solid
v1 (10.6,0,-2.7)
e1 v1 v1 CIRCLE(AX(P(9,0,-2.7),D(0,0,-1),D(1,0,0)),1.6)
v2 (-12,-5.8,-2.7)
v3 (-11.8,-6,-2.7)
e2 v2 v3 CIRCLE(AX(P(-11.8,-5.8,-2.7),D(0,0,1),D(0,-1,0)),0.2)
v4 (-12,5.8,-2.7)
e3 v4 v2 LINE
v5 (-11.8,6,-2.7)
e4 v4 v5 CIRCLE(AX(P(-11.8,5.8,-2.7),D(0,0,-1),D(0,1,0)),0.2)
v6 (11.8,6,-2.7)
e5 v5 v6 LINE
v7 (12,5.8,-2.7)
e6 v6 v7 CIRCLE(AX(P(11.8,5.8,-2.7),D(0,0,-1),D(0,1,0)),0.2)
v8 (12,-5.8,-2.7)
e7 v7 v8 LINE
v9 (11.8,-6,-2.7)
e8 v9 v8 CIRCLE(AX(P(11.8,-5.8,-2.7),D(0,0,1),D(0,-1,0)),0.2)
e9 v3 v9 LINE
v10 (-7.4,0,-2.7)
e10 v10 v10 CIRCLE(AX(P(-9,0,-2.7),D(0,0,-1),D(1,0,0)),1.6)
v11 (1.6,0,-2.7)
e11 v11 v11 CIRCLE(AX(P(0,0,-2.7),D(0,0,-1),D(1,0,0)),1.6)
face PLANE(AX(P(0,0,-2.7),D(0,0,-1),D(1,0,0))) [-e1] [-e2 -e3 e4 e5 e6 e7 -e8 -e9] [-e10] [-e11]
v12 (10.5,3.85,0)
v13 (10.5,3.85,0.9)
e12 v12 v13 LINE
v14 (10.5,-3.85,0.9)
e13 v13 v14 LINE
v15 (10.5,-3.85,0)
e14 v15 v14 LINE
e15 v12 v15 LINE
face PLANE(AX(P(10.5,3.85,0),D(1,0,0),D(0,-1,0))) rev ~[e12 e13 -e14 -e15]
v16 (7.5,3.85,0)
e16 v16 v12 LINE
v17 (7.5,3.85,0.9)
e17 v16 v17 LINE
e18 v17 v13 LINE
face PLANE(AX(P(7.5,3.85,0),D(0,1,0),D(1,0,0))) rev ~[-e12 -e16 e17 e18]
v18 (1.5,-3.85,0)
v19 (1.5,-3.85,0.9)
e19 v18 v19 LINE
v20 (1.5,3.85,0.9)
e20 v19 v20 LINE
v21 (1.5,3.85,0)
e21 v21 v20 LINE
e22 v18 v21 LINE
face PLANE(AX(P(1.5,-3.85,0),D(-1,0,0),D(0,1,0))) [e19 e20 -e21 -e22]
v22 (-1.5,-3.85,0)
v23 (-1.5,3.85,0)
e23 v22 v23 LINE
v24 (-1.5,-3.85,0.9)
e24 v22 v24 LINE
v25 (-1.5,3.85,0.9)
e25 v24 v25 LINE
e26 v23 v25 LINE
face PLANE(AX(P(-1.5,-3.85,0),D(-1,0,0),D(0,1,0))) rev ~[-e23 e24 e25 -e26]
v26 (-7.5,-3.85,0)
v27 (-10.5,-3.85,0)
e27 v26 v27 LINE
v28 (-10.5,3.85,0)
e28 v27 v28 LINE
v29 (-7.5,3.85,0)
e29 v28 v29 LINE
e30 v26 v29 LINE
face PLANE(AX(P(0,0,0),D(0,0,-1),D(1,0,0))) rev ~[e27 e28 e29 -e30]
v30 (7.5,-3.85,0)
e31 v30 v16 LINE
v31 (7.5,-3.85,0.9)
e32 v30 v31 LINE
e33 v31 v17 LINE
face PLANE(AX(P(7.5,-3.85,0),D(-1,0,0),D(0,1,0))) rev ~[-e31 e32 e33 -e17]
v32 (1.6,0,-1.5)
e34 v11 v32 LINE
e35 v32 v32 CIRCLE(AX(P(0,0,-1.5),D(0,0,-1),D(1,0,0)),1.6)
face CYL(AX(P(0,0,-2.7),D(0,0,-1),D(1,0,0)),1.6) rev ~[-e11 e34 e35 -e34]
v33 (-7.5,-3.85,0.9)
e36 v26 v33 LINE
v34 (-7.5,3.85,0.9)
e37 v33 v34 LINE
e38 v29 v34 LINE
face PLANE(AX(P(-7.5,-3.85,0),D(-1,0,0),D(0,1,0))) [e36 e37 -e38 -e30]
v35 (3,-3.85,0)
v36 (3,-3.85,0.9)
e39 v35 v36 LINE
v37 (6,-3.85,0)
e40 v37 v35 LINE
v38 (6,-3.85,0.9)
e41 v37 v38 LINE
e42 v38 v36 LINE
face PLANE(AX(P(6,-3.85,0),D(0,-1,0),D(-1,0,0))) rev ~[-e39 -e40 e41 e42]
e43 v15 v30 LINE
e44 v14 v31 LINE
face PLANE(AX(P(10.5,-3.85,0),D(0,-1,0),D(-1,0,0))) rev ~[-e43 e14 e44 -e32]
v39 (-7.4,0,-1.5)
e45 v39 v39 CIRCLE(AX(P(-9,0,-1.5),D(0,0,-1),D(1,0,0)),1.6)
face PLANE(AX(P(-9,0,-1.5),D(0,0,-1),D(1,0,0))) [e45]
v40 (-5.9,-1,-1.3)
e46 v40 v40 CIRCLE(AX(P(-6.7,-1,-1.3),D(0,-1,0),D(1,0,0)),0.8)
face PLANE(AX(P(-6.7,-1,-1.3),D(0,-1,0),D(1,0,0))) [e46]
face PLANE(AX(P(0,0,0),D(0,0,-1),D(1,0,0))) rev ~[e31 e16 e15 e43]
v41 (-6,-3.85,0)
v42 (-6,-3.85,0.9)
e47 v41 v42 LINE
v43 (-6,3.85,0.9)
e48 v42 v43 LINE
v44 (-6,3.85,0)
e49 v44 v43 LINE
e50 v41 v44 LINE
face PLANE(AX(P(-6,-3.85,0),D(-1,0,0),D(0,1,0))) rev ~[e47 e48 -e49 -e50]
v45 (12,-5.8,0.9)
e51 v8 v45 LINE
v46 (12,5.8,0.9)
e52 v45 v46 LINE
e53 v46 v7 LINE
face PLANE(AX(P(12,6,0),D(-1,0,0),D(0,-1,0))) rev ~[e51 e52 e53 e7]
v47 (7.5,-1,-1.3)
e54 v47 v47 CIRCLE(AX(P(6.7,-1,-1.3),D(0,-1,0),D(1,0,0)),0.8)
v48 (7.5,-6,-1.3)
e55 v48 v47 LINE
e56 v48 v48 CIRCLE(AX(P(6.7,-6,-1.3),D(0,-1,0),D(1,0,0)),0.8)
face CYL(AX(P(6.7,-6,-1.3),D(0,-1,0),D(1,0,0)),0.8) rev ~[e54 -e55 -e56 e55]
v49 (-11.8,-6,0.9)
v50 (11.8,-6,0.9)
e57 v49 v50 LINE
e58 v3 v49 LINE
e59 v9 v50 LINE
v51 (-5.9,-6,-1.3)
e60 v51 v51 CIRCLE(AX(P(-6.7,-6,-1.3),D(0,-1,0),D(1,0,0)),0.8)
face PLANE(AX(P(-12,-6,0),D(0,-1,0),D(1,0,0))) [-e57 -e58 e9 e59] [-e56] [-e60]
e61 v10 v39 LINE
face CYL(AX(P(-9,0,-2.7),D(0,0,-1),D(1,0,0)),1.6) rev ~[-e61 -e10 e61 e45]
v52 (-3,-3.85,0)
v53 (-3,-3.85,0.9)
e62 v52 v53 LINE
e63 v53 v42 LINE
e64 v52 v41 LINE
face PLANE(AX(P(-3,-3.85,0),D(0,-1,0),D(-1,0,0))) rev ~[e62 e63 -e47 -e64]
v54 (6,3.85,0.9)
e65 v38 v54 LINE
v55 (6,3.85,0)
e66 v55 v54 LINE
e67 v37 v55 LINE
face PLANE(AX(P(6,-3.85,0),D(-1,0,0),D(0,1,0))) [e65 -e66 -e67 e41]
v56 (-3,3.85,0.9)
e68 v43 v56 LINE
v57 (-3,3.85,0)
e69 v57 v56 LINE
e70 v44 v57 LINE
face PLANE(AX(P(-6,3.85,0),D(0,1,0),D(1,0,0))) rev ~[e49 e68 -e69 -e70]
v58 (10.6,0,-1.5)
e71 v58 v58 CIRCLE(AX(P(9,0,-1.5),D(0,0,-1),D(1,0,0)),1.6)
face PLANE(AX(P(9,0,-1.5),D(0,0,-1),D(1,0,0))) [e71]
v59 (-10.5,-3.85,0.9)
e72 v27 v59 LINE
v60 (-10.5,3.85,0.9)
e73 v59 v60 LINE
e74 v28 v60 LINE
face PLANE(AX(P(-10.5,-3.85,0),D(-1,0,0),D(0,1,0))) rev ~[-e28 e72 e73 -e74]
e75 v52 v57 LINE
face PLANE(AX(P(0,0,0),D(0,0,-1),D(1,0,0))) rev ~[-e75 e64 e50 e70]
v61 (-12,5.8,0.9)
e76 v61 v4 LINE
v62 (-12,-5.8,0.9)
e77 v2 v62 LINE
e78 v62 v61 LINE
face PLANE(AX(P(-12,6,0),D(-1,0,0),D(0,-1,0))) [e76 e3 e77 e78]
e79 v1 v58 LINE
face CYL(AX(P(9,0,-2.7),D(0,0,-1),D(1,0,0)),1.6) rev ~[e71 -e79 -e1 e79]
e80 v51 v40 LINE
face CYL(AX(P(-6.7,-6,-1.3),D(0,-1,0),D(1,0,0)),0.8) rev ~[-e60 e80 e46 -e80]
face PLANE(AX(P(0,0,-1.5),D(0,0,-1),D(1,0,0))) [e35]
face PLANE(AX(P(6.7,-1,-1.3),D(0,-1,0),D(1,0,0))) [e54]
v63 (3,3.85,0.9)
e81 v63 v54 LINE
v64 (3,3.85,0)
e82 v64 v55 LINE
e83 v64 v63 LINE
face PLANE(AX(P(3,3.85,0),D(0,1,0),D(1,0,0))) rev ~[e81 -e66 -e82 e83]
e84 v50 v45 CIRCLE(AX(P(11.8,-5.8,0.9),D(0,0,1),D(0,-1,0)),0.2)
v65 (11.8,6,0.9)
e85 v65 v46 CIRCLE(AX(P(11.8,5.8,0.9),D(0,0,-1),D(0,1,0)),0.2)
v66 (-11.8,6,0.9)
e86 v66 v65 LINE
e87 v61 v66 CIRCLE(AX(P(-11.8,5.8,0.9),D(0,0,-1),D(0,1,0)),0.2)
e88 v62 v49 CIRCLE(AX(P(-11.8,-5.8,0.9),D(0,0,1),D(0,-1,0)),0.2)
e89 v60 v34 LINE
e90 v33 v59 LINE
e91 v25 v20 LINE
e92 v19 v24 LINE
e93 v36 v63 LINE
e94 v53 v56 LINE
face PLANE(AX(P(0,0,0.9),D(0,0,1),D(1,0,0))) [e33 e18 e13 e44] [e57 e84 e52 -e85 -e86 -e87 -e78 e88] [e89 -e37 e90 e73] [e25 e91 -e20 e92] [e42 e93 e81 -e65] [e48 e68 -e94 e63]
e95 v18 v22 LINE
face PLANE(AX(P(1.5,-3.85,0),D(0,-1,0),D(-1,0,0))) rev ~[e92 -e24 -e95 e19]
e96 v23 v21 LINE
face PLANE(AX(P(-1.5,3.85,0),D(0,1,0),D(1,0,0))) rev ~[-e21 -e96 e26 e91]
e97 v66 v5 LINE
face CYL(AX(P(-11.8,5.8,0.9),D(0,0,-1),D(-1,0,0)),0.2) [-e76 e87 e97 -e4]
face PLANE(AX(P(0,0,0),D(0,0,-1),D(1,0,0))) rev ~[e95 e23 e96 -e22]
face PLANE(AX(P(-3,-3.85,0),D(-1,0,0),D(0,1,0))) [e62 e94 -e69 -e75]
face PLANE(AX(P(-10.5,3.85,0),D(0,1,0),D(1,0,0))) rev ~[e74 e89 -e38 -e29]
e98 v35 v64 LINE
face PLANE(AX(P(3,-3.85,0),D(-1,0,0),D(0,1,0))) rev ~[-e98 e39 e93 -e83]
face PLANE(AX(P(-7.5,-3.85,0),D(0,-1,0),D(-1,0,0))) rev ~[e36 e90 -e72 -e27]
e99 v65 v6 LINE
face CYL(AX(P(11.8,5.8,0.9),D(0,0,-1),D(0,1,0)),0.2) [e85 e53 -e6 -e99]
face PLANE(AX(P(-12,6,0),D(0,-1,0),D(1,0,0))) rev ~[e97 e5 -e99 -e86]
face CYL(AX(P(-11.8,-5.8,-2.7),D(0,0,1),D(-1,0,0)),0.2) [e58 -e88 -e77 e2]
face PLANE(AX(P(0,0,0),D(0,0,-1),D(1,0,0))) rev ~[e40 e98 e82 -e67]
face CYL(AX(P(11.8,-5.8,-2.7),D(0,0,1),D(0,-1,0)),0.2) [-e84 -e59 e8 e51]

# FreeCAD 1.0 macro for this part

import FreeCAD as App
import Part
import Sketcher

V = App.Vector


def edges_at(feature, points):
    """Names of the edges that pass closest to the given points."""
    edges = feature.Shape.Edges
    near = lambda p: min(range(len(edges)), key=lambda i: edges[i].distToShape(Part.Vertex(*p))[0])
    return sorted({f"Edge{near(p) + 1}" for p in points})

doc = App.newDocument("Part")
body = doc.addObject("PartDesign::Body", "Body")

# Sketch on XY plane
sketch1 = doc.addObject("Sketcher::SketchObject", "Sketch")
body.addObject(sketch1)
sketch1.AttachmentSupport = (doc.XY_Plane, [""])
sketch1.MapMode = "FlatFace"
sketch1.addGeometry(Part.LineSegment(V(-12, 6, 0), V(-12, -6, 0)), False)
sketch1.addGeometry(Part.LineSegment(V(-12, -6, 0), V(12, -6, 0)), False)
sketch1.addGeometry(Part.LineSegment(V(12, -6, 0), V(12, 6, 0)), False)
sketch1.addGeometry(Part.LineSegment(V(12, 6, 0), V(-12, 6, 0)), False)
sketch1.addGeometry(Part.LineSegment(V(10.5, -3.9, 0), V(7.5, -3.9, 0)), False)
sketch1.addGeometry(Part.LineSegment(V(7.5, -3.9, 0), V(7.5, 3.9, 0)), False)
sketch1.addGeometry(Part.LineSegment(V(7.5, 3.9, 0), V(10.5, 3.9, 0)), False)
sketch1.addGeometry(Part.LineSegment(V(10.5, 3.9, 0), V(10.5, -3.9, 0)), False)
sketch1.addGeometry(Part.LineSegment(V(6, -3.9, 0), V(3, -3.9, 0)), False)
sketch1.addGeometry(Part.LineSegment(V(3, -3.9, 0), V(3, 3.9, 0)), False)
sketch1.addGeometry(Part.LineSegment(V(3, 3.9, 0), V(6, 3.9, 0)), False)
sketch1.addGeometry(Part.LineSegment(V(6, 3.9, 0), V(6, -3.9, 0)), False)
sketch1.addGeometry(Part.LineSegment(V(1.5, -3.9, 0), V(-1.5, -3.9, 0)), False)
sketch1.addGeometry(Part.LineSegment(V(-1.5, -3.9, 0), V(-1.5, 3.9, 0)), False)
sketch1.addGeometry(Part.LineSegment(V(-1.5, 3.9, 0), V(1.5, 3.9, 0)), False)
sketch1.addGeometry(Part.LineSegment(V(1.5, 3.9, 0), V(1.5, -3.9, 0)), False)
sketch1.addGeometry(Part.LineSegment(V(-3, -3.9, 0), V(-6, -3.9, 0)), False)
sketch1.addGeometry(Part.LineSegment(V(-6, -3.9, 0), V(-6, 3.9, 0)), False)
sketch1.addGeometry(Part.LineSegment(V(-6, 3.9, 0), V(-3, 3.9, 0)), False)
sketch1.addGeometry(Part.LineSegment(V(-3, 3.9, 0), V(-3, -3.9, 0)), False)
sketch1.addGeometry(Part.LineSegment(V(-7.5, -3.9, 0), V(-10.5, -3.9, 0)), False)
sketch1.addGeometry(Part.LineSegment(V(-10.5, -3.9, 0), V(-10.5, 3.9, 0)), False)
sketch1.addGeometry(Part.LineSegment(V(-10.5, 3.9, 0), V(-7.5, 3.9, 0)), False)
sketch1.addGeometry(Part.LineSegment(V(-7.5, 3.9, 0), V(-7.5, -3.9, 0)), False)
sketch1.addConstraint(Sketcher.Constraint("Coincident", 0, 2, 1, 1))
sketch1.addConstraint(Sketcher.Constraint("Coincident", 1, 2, 2, 1))
sketch1.addConstraint(Sketcher.Constraint("Coincident", 2, 2, 3, 1))
sketch1.addConstraint(Sketcher.Constraint("Coincident", 3, 2, 0, 1))
sketch1.addConstraint(Sketcher.Constraint("Coincident", 4, 2, 5, 1))
sketch1.addConstraint(Sketcher.Constraint("Coincident", 5, 2, 6, 1))
sketch1.addConstraint(Sketcher.Constraint("Coincident", 6, 2, 7, 1))
sketch1.addConstraint(Sketcher.Constraint("Coincident", 7, 2, 4, 1))
sketch1.addConstraint(Sketcher.Constraint("Coincident", 8, 2, 9, 1))
sketch1.addConstraint(Sketcher.Constraint("Coincident", 9, 2, 10, 1))
sketch1.addConstraint(Sketcher.Constraint("Coincident", 10, 2, 11, 1))
sketch1.addConstraint(Sketcher.Constraint("Coincident", 11, 2, 8, 1))
sketch1.addConstraint(Sketcher.Constraint("Coincident", 12, 2, 13, 1))
sketch1.addConstraint(Sketcher.Constraint("Coincident", 13, 2, 14, 1))
sketch1.addConstraint(Sketcher.Constraint("Coincident", 14, 2, 15, 1))
sketch1.addConstraint(Sketcher.Constraint("Coincident", 15, 2, 12, 1))
sketch1.addConstraint(Sketcher.Constraint("Coincident", 16, 2, 17, 1))
sketch1.addConstraint(Sketcher.Constraint("Coincident", 17, 2, 18, 1))
sketch1.addConstraint(Sketcher.Constraint("Coincident", 18, 2, 19, 1))
sketch1.addConstraint(Sketcher.Constraint("Coincident", 19, 2, 16, 1))
sketch1.addConstraint(Sketcher.Constraint("Coincident", 20, 2, 21, 1))
sketch1.addConstraint(Sketcher.Constraint("Coincident", 21, 2, 22, 1))
sketch1.addConstraint(Sketcher.Constraint("Coincident", 22, 2, 23, 1))
sketch1.addConstraint(Sketcher.Constraint("Coincident", 23, 2, 20, 1))
sketch1.addConstraint(Sketcher.Constraint("Vertical", 0))
sketch1.addConstraint(Sketcher.Constraint("Horizontal", 1))
sketch1.addConstraint(Sketcher.Constraint("Vertical", 2))
sketch1.addConstraint(Sketcher.Constraint("Horizontal", 3))
sketch1.addConstraint(Sketcher.Constraint("Horizontal", 4))
sketch1.addConstraint(Sketcher.Constraint("Vertical", 5))
sketch1.addConstraint(Sketcher.Constraint("Horizontal", 6))
sketch1.addConstraint(Sketcher.Constraint("Vertical", 7))
sketch1.addConstraint(Sketcher.Constraint("Horizontal", 8))
sketch1.addConstraint(Sketcher.Constraint("Vertical", 9))
sketch1.addConstraint(Sketcher.Constraint("Horizontal", 10))
sketch1.addConstraint(Sketcher.Constraint("Vertical", 11))
sketch1.addConstraint(Sketcher.Constraint("Horizontal", 12))
sketch1.addConstraint(Sketcher.Constraint("Vertical", 13))
sketch1.addConstraint(Sketcher.Constraint("Horizontal", 14))
sketch1.addConstraint(Sketcher.Constraint("Vertical", 15))
sketch1.addConstraint(Sketcher.Constraint("Horizontal", 16))
sketch1.addConstraint(Sketcher.Constraint("Vertical", 17))
sketch1.addConstraint(Sketcher.Constraint("Horizontal", 18))
sketch1.addConstraint(Sketcher.Constraint("Vertical", 19))
sketch1.addConstraint(Sketcher.Constraint("Horizontal", 20))
sketch1.addConstraint(Sketcher.Constraint("Vertical", 21))
sketch1.addConstraint(Sketcher.Constraint("Horizontal", 22))
sketch1.addConstraint(Sketcher.Constraint("Vertical", 23))
sketch1.addConstraint(Sketcher.Constraint("Symmetric", 0, 2, 2, 2, -1, 1))
sketch1.addConstraint(Sketcher.Constraint("Symmetric", 12, 2, 14, 2, -1, 1))
sketch1.addConstraint(Sketcher.Constraint("Symmetric", 10, 2, 16, 2, -1, 1))
sketch1.addConstraint(Sketcher.Constraint("Symmetric", 8, 2, 18, 2, -1, 1))
sketch1.addConstraint(Sketcher.Constraint("Symmetric", 6, 2, 20, 2, -1, 1))
sketch1.addConstraint(Sketcher.Constraint("Symmetric", 4, 2, 22, 2, -1, 1))
sketch1.addConstraint(Sketcher.Constraint("Horizontal", 7, 2, 8, 2))
sketch1.addConstraint(Sketcher.Constraint("Horizontal", 6, 2, 9, 2))
sketch1.addConstraint(Sketcher.Constraint("Horizontal", 11, 2, 12, 2))
sketch1.addConstraint(Sketcher.Constraint("Horizontal", 10, 2, 13, 2))
sketch1.addConstraint(Sketcher.Constraint("Equal", 6, 8))
sketch1.addConstraint(Sketcher.Constraint("Equal", 10, 12))
sketch1.addConstraint(Sketcher.Constraint("DistanceX", 1, 1, 1, 2, 24.0))
sketch1.addConstraint(Sketcher.Constraint("DistanceX", 4, 2, 4, 1, 3.0))
sketch1.addConstraint(Sketcher.Constraint("DistanceY", 0, 2, 0, 1, 12.0))
sketch1.addConstraint(Sketcher.Constraint("DistanceY", 5, 1, 5, 2, 7.7))
sketch1.addConstraint(Sketcher.Constraint("DistanceX", -1, 1, 8, 2, 3.0))
sketch1.addConstraint(Sketcher.Constraint("DistanceX", 12, 2, 4, 2, 9.0))
pad1 = doc.addObject("PartDesign::Pad", "Pad")
body.addObject(pad1)
pad1.Profile = sketch1
pad1.Length = 0.9

# Sketch on XY plane
sketch2 = doc.addObject("Sketcher::SketchObject", "Sketch001")
body.addObject(sketch2)
sketch2.AttachmentSupport = (doc.XY_Plane, [""])
sketch2.MapMode = "FlatFace"
sketch2.addGeometry(Part.LineSegment(V(-12, -6, 0), V(-12, 6, 0)), False)
sketch2.addGeometry(Part.LineSegment(V(-12, 6, 0), V(12, 6, 0)), False)
sketch2.addGeometry(Part.LineSegment(V(12, 6, 0), V(12, -6, 0)), False)
sketch2.addGeometry(Part.LineSegment(V(12, -6, 0), V(-12, -6, 0)), False)
sketch2.addConstraint(Sketcher.Constraint("Coincident", 0, 2, 1, 1))
sketch2.addConstraint(Sketcher.Constraint("Coincident", 1, 2, 2, 1))
sketch2.addConstraint(Sketcher.Constraint("Coincident", 2, 2, 3, 1))
sketch2.addConstraint(Sketcher.Constraint("Coincident", 3, 2, 0, 1))
sketch2.addConstraint(Sketcher.Constraint("Vertical", 0))
sketch2.addConstraint(Sketcher.Constraint("Horizontal", 1))
sketch2.addConstraint(Sketcher.Constraint("Vertical", 2))
sketch2.addConstraint(Sketcher.Constraint("Horizontal", 3))
sketch2.addConstraint(Sketcher.Constraint("Symmetric", 0, 2, 2, 2, -1, 1))
sketch2.addConstraint(Sketcher.Constraint("DistanceX", 1, 1, 1, 2, 24.0))
sketch2.addConstraint(Sketcher.Constraint("DistanceY", 0, 1, 0, 2, 12.0))
pad2 = doc.addObject("PartDesign::Pad", "Pad001")
body.addObject(pad2)
pad2.Profile = sketch2
pad2.Length = 2.7
pad2.Reversed = True

# Sketch on XY plane
sketch3 = doc.addObject("Sketcher::SketchObject", "Sketch002")
body.addObject(sketch3)
sketch3.AttachmentSupport = (doc.XY_Plane, [""])
sketch3.MapMode = "FlatFace"
sketch3.AttachmentOffset = App.Placement(V(0, 0, -2.7), App.Rotation())
sketch3.addGeometry(Part.Circle(V(0, 0, 0), V(0, 0, 1), 1.6), False)
sketch3.addGeometry(Part.Circle(V(9, 0, 0), V(0, 0, 1), 1.6), False)
sketch3.addGeometry(Part.Circle(V(-9, 0, 0), V(0, 0, 1), 1.6), False)
sketch3.addConstraint(Sketcher.Constraint("Coincident", 0, 3, -1, 1))
sketch3.addConstraint(Sketcher.Constraint("Equal", 0, 1))
sketch3.addConstraint(Sketcher.Constraint("Equal", 1, 2))
sketch3.addConstraint(Sketcher.Constraint("Symmetric", 1, 3, 2, 3, -1, 1))
sketch3.addConstraint(Sketcher.Constraint("PointOnObject", 1, 3, -1))
sketch3.addConstraint(Sketcher.Constraint("Diameter", 0, 3.2))
sketch3.addConstraint(Sketcher.Constraint("DistanceX", -1, 1, 1, 3, 9.0))
pocket1 = doc.addObject("PartDesign::Pocket", "Pocket")
body.addObject(pocket1)
pocket1.Profile = sketch3
pocket1.Length = 1.2
pocket1.Reversed = True
doc.recompute()

fillet = doc.addObject("PartDesign::Fillet", "Fillet")
body.addObject(fillet)
fillet.Base = (pocket1, edges_at(pocket1, [
    (-12, -6, -0.9),
    (12, -6, -0.9),
    (12, 6, -0.9),
    (-12, 6, -0.9),
]))
fillet.Radius = 0.2

# Sketch on XZ plane
sketch4 = doc.addObject("Sketcher::SketchObject", "Sketch003")
body.addObject(sketch4)
sketch4.AttachmentSupport = (doc.XZ_Plane, [""])
sketch4.MapMode = "FlatFace"
sketch4.AttachmentOffset = App.Placement(V(0, 0, 6), App.Rotation())
sketch4.addGeometry(Part.Circle(V(-6.7, -1.3, 0), V(0, 0, 1), 0.8), False)
sketch4.addGeometry(Part.Circle(V(6.7, -1.3, 0), V(0, 0, 1), 0.8), False)
sketch4.addConstraint(Sketcher.Constraint("Equal", 0, 1))
sketch4.addConstraint(Sketcher.Constraint("Symmetric", 0, 3, 1, 3, -2))
sketch4.addConstraint(Sketcher.Constraint("Diameter", 0, 1.6))
sketch4.addConstraint(Sketcher.Constraint("DistanceX", 0, 3, -1, 1, 6.7))
sketch4.addConstraint(Sketcher.Constraint("DistanceY", 0, 3, -1, 1, 1.3))
pocket2 = doc.addObject("PartDesign::Pocket", "Pocket001")
body.addObject(pocket2)
pocket2.Profile = sketch4
pocket2.Length = 5

doc.recompute()
